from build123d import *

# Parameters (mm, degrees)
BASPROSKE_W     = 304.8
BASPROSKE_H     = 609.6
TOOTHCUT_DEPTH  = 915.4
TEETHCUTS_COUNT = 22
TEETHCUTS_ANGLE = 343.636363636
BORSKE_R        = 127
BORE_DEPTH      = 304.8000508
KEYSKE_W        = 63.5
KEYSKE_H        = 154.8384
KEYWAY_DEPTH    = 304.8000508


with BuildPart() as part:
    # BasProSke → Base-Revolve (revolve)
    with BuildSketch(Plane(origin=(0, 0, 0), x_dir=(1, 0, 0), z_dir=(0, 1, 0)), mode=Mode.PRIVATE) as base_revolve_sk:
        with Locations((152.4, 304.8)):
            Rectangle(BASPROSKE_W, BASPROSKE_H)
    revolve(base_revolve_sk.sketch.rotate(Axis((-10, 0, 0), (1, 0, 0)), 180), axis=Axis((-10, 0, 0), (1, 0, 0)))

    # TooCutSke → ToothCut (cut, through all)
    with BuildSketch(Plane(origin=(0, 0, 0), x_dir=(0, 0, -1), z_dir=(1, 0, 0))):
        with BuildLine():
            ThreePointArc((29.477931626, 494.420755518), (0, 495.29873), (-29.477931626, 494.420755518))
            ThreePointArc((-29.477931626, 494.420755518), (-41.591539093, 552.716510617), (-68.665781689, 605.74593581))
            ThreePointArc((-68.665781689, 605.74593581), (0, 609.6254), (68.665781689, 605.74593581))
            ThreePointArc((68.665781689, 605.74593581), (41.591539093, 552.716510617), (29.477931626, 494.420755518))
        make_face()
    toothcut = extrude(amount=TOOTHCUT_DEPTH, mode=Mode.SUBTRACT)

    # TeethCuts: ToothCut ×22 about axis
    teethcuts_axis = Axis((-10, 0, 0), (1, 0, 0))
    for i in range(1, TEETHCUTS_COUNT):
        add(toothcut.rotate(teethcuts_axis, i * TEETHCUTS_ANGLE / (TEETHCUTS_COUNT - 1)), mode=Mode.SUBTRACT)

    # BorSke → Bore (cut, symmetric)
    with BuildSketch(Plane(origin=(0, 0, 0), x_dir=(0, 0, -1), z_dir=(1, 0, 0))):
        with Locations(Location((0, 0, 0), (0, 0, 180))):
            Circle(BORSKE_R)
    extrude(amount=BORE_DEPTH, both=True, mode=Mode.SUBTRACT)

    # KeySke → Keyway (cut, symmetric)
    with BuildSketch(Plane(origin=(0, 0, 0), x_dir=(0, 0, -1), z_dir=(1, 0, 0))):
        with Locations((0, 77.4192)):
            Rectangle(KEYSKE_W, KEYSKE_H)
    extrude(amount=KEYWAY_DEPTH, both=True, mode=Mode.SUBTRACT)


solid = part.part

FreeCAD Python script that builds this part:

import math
import FreeCAD as App
import Part
import Sketcher

V = App.Vector
Q = App.Units.Quantity


def add_polygon(sketch, points):
    """Adds a closed chain of lines whose ends are joined by coincident constraints."""
    first, n = sketch.GeometryCount, len(points)
    for a, b in zip(points, points[1:] + points[:1]):
        sketch.addGeometry(Part.LineSegment(App.Vector(*a, 0), App.Vector(*b, 0)), False)
    for i in range(n):
        sketch.addConstraint(Sketcher.Constraint("Coincident", first + i, 2, first + (i + 1) % n, 1))

doc = App.newDocument("Part")
body = doc.addObject("PartDesign::Body", "Body")

sketch1 = doc.addObject("Sketcher::SketchObject", "Sketch")
body.addObject(sketch1)
sketch1.AttachmentSupport = (doc.XZ_Plane, [""])
sketch1.MapMode = "FlatFace"
add_polygon(sketch1, [(0, -610), (0, 0), (305, 0), (305, -610)])
sketch1.addConstraint([
    Sketcher.Constraint("Vertical", 0),
    Sketcher.Constraint("Horizontal", 1),
    Sketcher.Constraint("Vertical", 2),
    Sketcher.Constraint("Horizontal", 3),
    Sketcher.Constraint("Coincident", 0, 2, -1, 1),
    Sketcher.Constraint("DistanceX", 1, 1, 1, 2, Q("12 in")),
    Sketcher.Constraint("DistanceY", 0, 1, 0, 2, Q("24 in")),
])
revolution = doc.addObject("PartDesign::Revolution", "Revolution")
body.addObject(revolution)
revolution.Profile = sketch1
revolution.ReferenceAxis = (sketch1, ["H_Axis"])
revolution.Angle = 360

sketch2 = doc.addObject("Sketcher::SketchObject", "Sketch001")
body.addObject(sketch2)
sketch2.AttachmentSupport = (doc.YZ_Plane, [""])
sketch2.MapMode = "FlatFace"
sketch2.addGeometry([
    Part.ArcOfCircle(Part.Circle(V(0, 0, 0), V(0, 0, 1), 495), math.radians(-3.41), math.radians(3.41)),
    Part.ArcOfCircle(Part.Circle(V(478, -252, 0), V(0, 0, 1), 224), math.radians(55), math.radians(86)),
    Part.ArcOfCircle(Part.Circle(V(0, 0, 0), V(0, 0, 1), 610), math.radians(-6.47), math.radians(6.47)),
    Part.ArcOfCircle(Part.Circle(V(478, 252, 0), V(0, 0, 1), 224), math.radians(-86), math.radians(-55)),
], False)
sketch2.addConstraint([
    Sketcher.Constraint("Coincident", 0, 1, 1, 2),
    Sketcher.Constraint("Coincident", 1, 1, 2, 1),
    Sketcher.Constraint("Coincident", 2, 2, 3, 2),
    Sketcher.Constraint("Coincident", 3, 1, 0, 2),
    Sketcher.Constraint("Coincident", 0, 3, -1, 1),
    Sketcher.Constraint("Coincident", 2, 3, -1, 1),
    Sketcher.Constraint("Equal", 1, 3),
    Sketcher.Constraint("Symmetric", 1, 3, 3, 3, -1),
    Sketcher.Constraint("Radius", 1, Q("8.8 in")),
    Sketcher.Constraint("Radius", 2, Q("24.001 in")),
    Sketcher.Constraint("Radius", 0, Q("495.29873 mm")),
    Sketcher.Constraint("DistanceY", 1, 3, -1, 1, Q("252.430121 mm")),
    Sketcher.Constraint("DistanceY", 1, 1, -1, 1, Q("68.665782 mm")),
])
pocket1 = doc.addObject("PartDesign::Pocket", "Pocket")
body.addObject(pocket1)
pocket1.Profile = sketch2
pocket1.Type = "ThroughAll"
pocket1.Reversed = True
doc.recompute()

polarpattern = doc.addObject("PartDesign::PolarPattern", "PolarPattern")
body.addObject(polarpattern)
polarpattern.Originals = [pocket1]
polarpattern.Axis = (doc.X_Axis, [""])
polarpattern.Angle = 360
polarpattern.Occurrences = 22
body.Tip = polarpattern

sketch3 = doc.addObject("Sketcher::SketchObject", "Sketch002")
body.addObject(sketch3)
sketch3.AttachmentSupport = (doc.YZ_Plane, [""])
sketch3.MapMode = "FlatFace"
sketch3.addGeometry(Part.Circle(V(0, 0, 0), V(0, 0, 1), 127), False)
sketch3.addConstraint([
    Sketcher.Constraint("Coincident", 0, 3, -1, 1),
    Sketcher.Constraint("Diameter", 0, Q("10 in")),
])
pocket2 = doc.addObject("PartDesign::Pocket", "Pocket001")
body.addObject(pocket2)
pocket2.Profile = sketch3
pocket2.Length = 609.600102
pocket2.Midplane = True

sketch4 = doc.addObject("Sketcher::SketchObject", "Sketch003")
body.addObject(sketch4)
sketch4.AttachmentSupport = (doc.YZ_Plane, [""])
sketch4.MapMode = "FlatFace"
add_polygon(sketch4, [(155, 32), (0, 32), (0, -32), (155, -32)])
sketch4.addConstraint([
    Sketcher.Constraint("Horizontal", 0),
    Sketcher.Constraint("Vertical", 1),
    Sketcher.Constraint("Horizontal", 2),
    Sketcher.Constraint("Vertical", 3),
    Sketcher.Constraint("Symmetric", 0, 2, 1, 2, -1, 1),
    Sketcher.Constraint("DistanceY", 1, 2, 1, 1, Q("2.5 in")),
    Sketcher.Constraint("DistanceX", 0, 2, 0, 1, Q("6.096 in")),
])
pocket3 = doc.addObject("PartDesign::Pocket", "Pocket002")
body.addObject(pocket3)
pocket3.Profile = sketch4
pocket3.Length = 609.600102
pocket3.Midplane = True

doc.recompute()
